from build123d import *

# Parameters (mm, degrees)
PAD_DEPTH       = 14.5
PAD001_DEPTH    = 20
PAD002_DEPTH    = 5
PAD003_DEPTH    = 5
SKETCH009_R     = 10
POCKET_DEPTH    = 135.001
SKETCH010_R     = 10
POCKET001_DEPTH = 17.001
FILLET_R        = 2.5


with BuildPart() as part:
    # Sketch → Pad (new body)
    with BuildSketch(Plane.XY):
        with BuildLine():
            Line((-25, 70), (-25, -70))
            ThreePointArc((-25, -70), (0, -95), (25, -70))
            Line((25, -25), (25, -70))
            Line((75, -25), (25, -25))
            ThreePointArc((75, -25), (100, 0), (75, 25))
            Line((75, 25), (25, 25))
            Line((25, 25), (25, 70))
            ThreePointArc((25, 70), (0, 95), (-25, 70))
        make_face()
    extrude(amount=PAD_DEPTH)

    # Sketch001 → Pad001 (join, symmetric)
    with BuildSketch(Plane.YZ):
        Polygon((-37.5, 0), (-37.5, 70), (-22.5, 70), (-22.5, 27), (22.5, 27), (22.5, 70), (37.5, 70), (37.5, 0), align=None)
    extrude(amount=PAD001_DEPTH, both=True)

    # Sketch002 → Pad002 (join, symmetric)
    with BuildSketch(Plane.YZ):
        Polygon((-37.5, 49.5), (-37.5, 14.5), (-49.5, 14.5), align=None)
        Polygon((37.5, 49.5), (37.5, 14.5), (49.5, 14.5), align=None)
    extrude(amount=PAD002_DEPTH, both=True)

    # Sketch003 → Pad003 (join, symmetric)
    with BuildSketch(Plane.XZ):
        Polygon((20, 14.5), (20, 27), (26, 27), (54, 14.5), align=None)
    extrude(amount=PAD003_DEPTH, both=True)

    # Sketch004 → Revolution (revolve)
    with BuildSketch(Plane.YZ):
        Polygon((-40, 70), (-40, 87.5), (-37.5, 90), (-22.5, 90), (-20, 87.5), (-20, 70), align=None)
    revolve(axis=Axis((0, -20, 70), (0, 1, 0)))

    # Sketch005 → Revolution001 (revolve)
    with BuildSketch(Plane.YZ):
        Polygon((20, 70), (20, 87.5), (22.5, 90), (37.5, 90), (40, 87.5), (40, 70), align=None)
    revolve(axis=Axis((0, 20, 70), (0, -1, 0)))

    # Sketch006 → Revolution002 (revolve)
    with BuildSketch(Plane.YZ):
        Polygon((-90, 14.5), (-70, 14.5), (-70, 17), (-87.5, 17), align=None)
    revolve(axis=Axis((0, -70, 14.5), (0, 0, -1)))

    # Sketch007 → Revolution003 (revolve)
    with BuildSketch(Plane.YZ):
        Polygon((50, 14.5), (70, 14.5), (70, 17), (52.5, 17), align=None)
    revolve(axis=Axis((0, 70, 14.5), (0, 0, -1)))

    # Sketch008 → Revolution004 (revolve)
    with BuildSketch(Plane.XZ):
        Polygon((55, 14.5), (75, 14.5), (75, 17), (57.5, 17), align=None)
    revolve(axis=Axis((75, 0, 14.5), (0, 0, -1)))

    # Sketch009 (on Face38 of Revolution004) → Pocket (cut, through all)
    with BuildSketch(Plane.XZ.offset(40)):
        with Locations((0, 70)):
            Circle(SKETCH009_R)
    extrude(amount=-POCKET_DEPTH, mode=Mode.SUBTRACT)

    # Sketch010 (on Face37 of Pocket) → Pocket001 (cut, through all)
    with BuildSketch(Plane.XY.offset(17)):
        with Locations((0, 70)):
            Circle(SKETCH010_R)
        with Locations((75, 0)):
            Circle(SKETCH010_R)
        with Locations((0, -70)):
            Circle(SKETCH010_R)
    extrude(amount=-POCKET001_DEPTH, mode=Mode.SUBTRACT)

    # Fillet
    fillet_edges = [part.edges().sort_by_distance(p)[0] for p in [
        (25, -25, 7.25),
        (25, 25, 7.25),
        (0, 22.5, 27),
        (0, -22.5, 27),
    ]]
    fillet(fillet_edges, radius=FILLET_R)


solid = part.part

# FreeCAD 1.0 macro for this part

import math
import FreeCAD as App
import Part
import Sketcher
Q = App.Units.Quantity


def edges_at(feature, points):
    """Names of the edges that pass closest to the given points."""
    edges = feature.Shape.Edges
    near = lambda p: min(range(len(edges)), key=lambda i: edges[i].distToShape(Part.Vertex(*p))[0])
    return sorted({f"Edge{near(p) + 1}" for p in points})

doc = App.newDocument("Part")
body = doc.addObject("PartDesign::Body", "Body")

# Sketch on XY plane
sketch1 = body.newObject("Sketcher::SketchObject", "Sketch")
sketch1.AttachmentSupport = (doc.getObject("XY_Plane"), [""])
sketch1.MapMode = "FlatFace"
sketch1.addGeometry([
    Part.LineSegment(App.Vector(-25, 70, 0), App.Vector(-25, -70, 0)),  # 0
    Part.ArcOfCircle(Part.Circle(App.Vector(0, -70, 0), App.Vector(0, 0, 1), 25), math.radians(180), math.radians(360)),  # 1
    Part.LineSegment(App.Vector(25, -70, 0), App.Vector(25, -25, 0)),  # 2
    Part.LineSegment(App.Vector(25, -25, 0), App.Vector(75, -25, 0)),  # 3
    Part.ArcOfCircle(Part.Circle(App.Vector(75, 0, 0), App.Vector(0, 0, 1), 25), math.radians(-90), math.radians(90)),  # 4
    Part.LineSegment(App.Vector(75, 25, 0), App.Vector(25, 25, 0)),  # 5
    Part.LineSegment(App.Vector(25, 25, 0), App.Vector(25, 70, 0)),  # 6
    Part.ArcOfCircle(Part.Circle(App.Vector(0, 70, 0), App.Vector(0, 0, 1), 25), math.radians(0), math.radians(180)),  # 7
], False)
sketch1.addConstraint([
    Sketcher.Constraint("Tangent", 0, 2, 1, 1),
    Sketcher.Constraint("Tangent", 1, 2, 2, 1),
    Sketcher.Constraint("Coincident", 2, 2, 3, 1),
    Sketcher.Constraint("Tangent", 3, 2, 4, 1),
    Sketcher.Constraint("Tangent", 4, 2, 5, 1),
    Sketcher.Constraint("Coincident", 5, 2, 6, 1),
    Sketcher.Constraint("Tangent", 6, 2, 7, 1),
    Sketcher.Constraint("Tangent", 7, 2, 0, 1),
    Sketcher.Constraint("Vertical", 0),
    Sketcher.Constraint("Vertical", 2),
    Sketcher.Constraint("Horizontal", 3),
    Sketcher.Constraint("Horizontal", 5),
    Sketcher.Constraint("Vertical", 6),
    Sketcher.Constraint("Equal", 1, 4),
    Sketcher.Constraint("Equal", 4, 7),
    Sketcher.Constraint("Symmetric", 1, 3, 7, 3, -1, 1),
    Sketcher.Constraint("PointOnObject", 4, 3, -1),
    Sketcher.Constraint("Radius", 1, 25.0),
    Sketcher.Constraint("DistanceX", 3, 1, 3, 2, 50.0),
    Sketcher.Constraint("DistanceY", 0, 2, 0, 1, 140.0),
])
pad1 = body.newObject("PartDesign::Pad", "Pad")
pad1.Profile = sketch1
pad1.Length = 14.5

# Sketch on YZ plane
sketch2 = body.newObject("Sketcher::SketchObject", "Sketch001")
sketch2.AttachmentSupport = (doc.getObject("YZ_Plane"), [""])
sketch2.MapMode = "FlatFace"
sketch2.addGeometry([
    Part.LineSegment(App.Vector(-38, 70, 0), App.Vector(-38, 0, 0)),  # 0
    Part.LineSegment(App.Vector(-38, 0, 0), App.Vector(38, 0, 0)),  # 1
    Part.LineSegment(App.Vector(38, 0, 0), App.Vector(38, 70, 0)),  # 2
    Part.LineSegment(App.Vector(38, 70, 0), App.Vector(22, 70, 0)),  # 3
    Part.LineSegment(App.Vector(22, 70, 0), App.Vector(22, 27, 0)),  # 4
    Part.LineSegment(App.Vector(22, 27, 0), App.Vector(-22, 27, 0)),  # 5
    Part.LineSegment(App.Vector(-22, 27, 0), App.Vector(-22, 70, 0)),  # 6
    Part.LineSegment(App.Vector(-22, 70, 0), App.Vector(-38, 70, 0)),  # 7
], False)
sketch2.addConstraint([
    Sketcher.Constraint("Coincident", 0, 2, 1, 1),
    Sketcher.Constraint("Coincident", 1, 2, 2, 1),
    Sketcher.Constraint("Coincident", 2, 2, 3, 1),
    Sketcher.Constraint("Coincident", 3, 2, 4, 1),
    Sketcher.Constraint("Coincident", 4, 2, 5, 1),
    Sketcher.Constraint("Coincident", 5, 2, 6, 1),
    Sketcher.Constraint("Coincident", 6, 2, 7, 1),
    Sketcher.Constraint("Coincident", 7, 2, 0, 1),
    Sketcher.Constraint("Vertical", 0),
    Sketcher.Constraint("Horizontal", 1),
    Sketcher.Constraint("Vertical", 2),
    Sketcher.Constraint("Horizontal", 3),
    Sketcher.Constraint("Vertical", 4),
    Sketcher.Constraint("Horizontal", 5),
    Sketcher.Constraint("Vertical", 6),
    Sketcher.Constraint("Horizontal", 7),
    Sketcher.Constraint("Symmetric", 0, 2, 1, 2, -1, 1),
    Sketcher.Constraint("Symmetric", 3, 2, 6, 2, -2),
    Sketcher.Constraint("DistanceX", 1, 1, 1, 2, 75.0),
    Sketcher.Constraint("DistanceX", 3, 2, 3, 1, 15.0),
    Sketcher.Constraint("DistanceY", 0, 2, 0, 1, 70.0),
    Sketcher.Constraint("DistanceY", 4, 2, 4, 1, 43.0),
])
pad2 = body.newObject("PartDesign::Pad", "Pad001")
pad2.Profile = sketch2
pad2.Length = 40
pad2.Midplane = True

# Sketch on YZ plane
sketch3 = body.newObject("Sketcher::SketchObject", "Sketch002")
sketch3.AttachmentSupport = (doc.getObject("YZ_Plane"), [""])
sketch3.MapMode = "FlatFace"
sketch3.addGeometry([
    Part.LineSegment(App.Vector(-38, 14, 0), App.Vector(-38, 50, 0)),  # 0
    Part.LineSegment(App.Vector(-38, 50, 0), App.Vector(-50, 14, 0)),  # 1
    Part.LineSegment(App.Vector(-50, 14, 0), App.Vector(-38, 14, 0)),  # 2
    Part.LineSegment(App.Vector(38, 50, 0), App.Vector(38, 14, 0)),  # 3
    Part.LineSegment(App.Vector(38, 14, 0), App.Vector(50, 14, 0)),  # 4
    Part.LineSegment(App.Vector(50, 14, 0), App.Vector(38, 50, 0)),  # 5
], False)
sketch3.addConstraint([
    Sketcher.Constraint("Coincident", 0, 2, 1, 1),
    Sketcher.Constraint("Coincident", 1, 2, 2, 1),
    Sketcher.Constraint("Coincident", 2, 2, 0, 1),
    Sketcher.Constraint("Coincident", 3, 2, 4, 1),
    Sketcher.Constraint("Coincident", 4, 2, 5, 1),
    Sketcher.Constraint("Coincident", 5, 2, 3, 1),
    Sketcher.Constraint("Vertical", 0),
    Sketcher.Constraint("Horizontal", 2),
    Sketcher.Constraint("Vertical", 3),
    Sketcher.Constraint("Horizontal", 4),
    Sketcher.Constraint("Symmetric", 2, 2, 3, 2, -2),
    Sketcher.Constraint("Horizontal", 0, 2, 5, 2),
    Sketcher.Constraint("Equal", 2, 4),
    Sketcher.Constraint("DistanceX", 2, 1, 2, 2, 12.0),
    Sketcher.Constraint("DistanceY", 0, 1, 0, 2, 35.0),
    Sketcher.Constraint("DistanceX", 2, 2, 3, 2, 75.0),
    Sketcher.Constraint("DistanceY", -1, 1, 0, 2, 49.5),
])
pad3 = body.newObject("PartDesign::Pad", "Pad002")
pad3.Profile = sketch3
pad3.Length = 10
pad3.Midplane = True

# Sketch on XZ plane
sketch4 = body.newObject("Sketcher::SketchObject", "Sketch003")
sketch4.AttachmentSupport = (doc.getObject("XZ_Plane"), [""])
sketch4.MapMode = "FlatFace"
sketch4.addGeometry([
    Part.LineSegment(App.Vector(20, 27, 0), App.Vector(20, 14, 0)),
    Part.LineSegment(App.Vector(20, 14, 0), App.Vector(54, 14, 0)),
    Part.LineSegment(App.Vector(54, 14, 0), App.Vector(26, 27, 0)),
    Part.LineSegment(App.Vector(26, 27, 0), App.Vector(20, 27, 0)),
], False)
sketch4.addConstraint([
    Sketcher.Constraint("Coincident", 0, 2, 1, 1),
    Sketcher.Constraint("Coincident", 1, 2, 2, 1),
    Sketcher.Constraint("Coincident", 2, 2, 3, 1),
    Sketcher.Constraint("Coincident", 3, 2, 0, 1),
    Sketcher.Constraint("Vertical", 0),
    Sketcher.Constraint("Horizontal", 1),
    Sketcher.Constraint("Horizontal", 3),
    Sketcher.Constraint("DistanceX", 1, 1, 1, 2, 34.0),
    Sketcher.Constraint("DistanceX", 3, 2, 3, 1, 6.0),
    Sketcher.Constraint("DistanceY", 0, 2, 0, 1, 12.5),
    Sketcher.Constraint("DistanceX", -1, 1, 0, 2, 20.0),
    Sketcher.Constraint("DistanceY", -1, 1, 2, 2, 27.0),
])
pad4 = body.newObject("PartDesign::Pad", "Pad003")
pad4.Profile = sketch4
pad4.Length = 10
pad4.Midplane = True

# Sketch on YZ plane
sketch5 = body.newObject("Sketcher::SketchObject", "Sketch004")
sketch5.AttachmentSupport = (doc.getObject("YZ_Plane"), [""])
sketch5.MapMode = "FlatFace"
sketch5.addGeometry([
    Part.LineSegment(App.Vector(-40, 87.5, 0), App.Vector(-40, 70, 0)),  # 0
    Part.LineSegment(App.Vector(-40, 70, 0), App.Vector(-20, 70, 0)),  # 1
    Part.LineSegment(App.Vector(-20, 70, 0), App.Vector(-20, 87.5, 0)),  # 2
    Part.LineSegment(App.Vector(-20, 87.5, 0), App.Vector(-22.5, 90, 0)),  # 3
    Part.LineSegment(App.Vector(-22.5, 90, 0), App.Vector(-37.5, 90, 0)),  # 4
    Part.LineSegment(App.Vector(-37.5, 90, 0), App.Vector(-40, 87.5, 0)),  # 5
], False)
sketch5.addGeometry(Part.LineSegment(App.Vector(-40, 70, 0), App.Vector(-20, 70, 0)), True)  # axis
sketch5.addConstraint([
    Sketcher.Constraint("Coincident", 0, 2, 1, 1),
    Sketcher.Constraint("Coincident", 1, 2, 2, 1),
    Sketcher.Constraint("Coincident", 2, 2, 3, 1),
    Sketcher.Constraint("Coincident", 3, 2, 4, 1),
    Sketcher.Constraint("Coincident", 4, 2, 5, 1),
    Sketcher.Constraint("Coincident", 5, 2, 0, 1),
    Sketcher.Constraint("Vertical", 0),
    Sketcher.Constraint("Horizontal", 1),
    Sketcher.Constraint("Vertical", 2),
    Sketcher.Constraint("Horizontal", 4),
    Sketcher.Constraint("Horizontal", 6),
    Sketcher.Constraint("Coincident", 6, 1, 0, 2),
    Sketcher.Constraint("Perpendicular", 3, 5),
    Sketcher.Constraint("Horizontal", 2, 2, 5, 2),
    Sketcher.Constraint("Vertical", 2, 2, 6, 2),
    Sketcher.Constraint("Equal", 3, 5),
    Sketcher.Constraint("DistanceX", 1, 1, 1, 2, 20.0),
    Sketcher.Constraint("DistanceX", 4, 2, 4, 1, 15.0),
    Sketcher.Constraint("DistanceY", 0, 2, 0, 1, 17.5),
    Sketcher.Constraint("DistanceX", 0, 2, -1, 1, 40.0),
    Sketcher.Constraint("DistanceY", -1, 1, 0, 2, 70.0),
])
revolution = body.newObject("PartDesign::Revolution", "Revolution")
revolution.Profile = sketch5
revolution.ReferenceAxis = (sketch5, ["Axis0"])
revolution.Angle = 360

# Sketch on YZ plane
sketch6 = body.newObject("Sketcher::SketchObject", "Sketch005")
sketch6.AttachmentSupport = (doc.getObject("YZ_Plane"), [""])
sketch6.MapMode = "FlatFace"
sketch6.addGeometry([
    Part.LineSegment(App.Vector(20, 87.5, 0), App.Vector(20, 70, 0)),  # 0
    Part.LineSegment(App.Vector(20, 70, 0), App.Vector(40, 70, 0)),  # 1
    Part.LineSegment(App.Vector(40, 70, 0), App.Vector(40, 87.5, 0)),  # 2
    Part.LineSegment(App.Vector(40, 87.5, 0), App.Vector(37.5, 90, 0)),  # 3
    Part.LineSegment(App.Vector(37.5, 90, 0), App.Vector(22.5, 90, 0)),  # 4
    Part.LineSegment(App.Vector(22.5, 90, 0), App.Vector(20, 87.5, 0)),  # 5
], False)
sketch6.addGeometry(Part.LineSegment(App.Vector(40, 70, 0), App.Vector(20, 70, 0)), True)  # axis
sketch6.addConstraint([
    Sketcher.Constraint("Coincident", 0, 2, 1, 1),
    Sketcher.Constraint("Coincident", 1, 2, 2, 1),
    Sketcher.Constraint("Coincident", 2, 2, 3, 1),
    Sketcher.Constraint("Coincident", 3, 2, 4, 1),
    Sketcher.Constraint("Coincident", 4, 2, 5, 1),
    Sketcher.Constraint("Coincident", 5, 2, 0, 1),
    Sketcher.Constraint("Vertical", 0),
    Sketcher.Constraint("Horizontal", 1),
    Sketcher.Constraint("Vertical", 2),
    Sketcher.Constraint("Horizontal", 4),
    Sketcher.Constraint("Horizontal", 6),
    Sketcher.Constraint("Coincident", 6, 1, 1, 2),
    Sketcher.Constraint("Perpendicular", 3, 5),
    Sketcher.Constraint("Horizontal", 2, 2, 5, 2),
    Sketcher.Constraint("Vertical", 5, 2, 6, 2),
    Sketcher.Constraint("Equal", 3, 5),
    Sketcher.Constraint("DistanceX", 1, 1, 1, 2, 20.0),
    Sketcher.Constraint("DistanceX", 4, 2, 4, 1, 15.0),
    Sketcher.Constraint("DistanceY", 0, 2, 0, 1, 17.5),
    Sketcher.Constraint("DistanceX", -1, 1, 0, 2, 20.0),
    Sketcher.Constraint("DistanceY", -1, 1, 0, 2, 70.0),
])
revolution2 = body.newObject("PartDesign::Revolution", "Revolution001")
revolution2.Profile = sketch6
revolution2.ReferenceAxis = (sketch6, ["Axis0"])
revolution2.Angle = 360

# Sketch on YZ plane
sketch7 = body.newObject("Sketcher::SketchObject", "Sketch006")
sketch7.AttachmentSupport = (doc.getObject("YZ_Plane"), [""])
sketch7.MapMode = "FlatFace"
sketch7.addGeometry([
    Part.LineSegment(App.Vector(-90, 14.5, 0), App.Vector(-70, 14.5, 0)),
    Part.LineSegment(App.Vector(-70, 14.5, 0), App.Vector(-70, 17, 0)),
    Part.LineSegment(App.Vector(-70, 17, 0), App.Vector(-87.5, 17, 0)),
    Part.LineSegment(App.Vector(-87.5, 17, 0), App.Vector(-90, 14.5, 0)),
], False)
sketch7.addGeometry(Part.LineSegment(App.Vector(-70, 17, 0), App.Vector(-70, 14.5, 0)), True)  # axis
sketch7.addConstraint([
    Sketcher.Constraint("Coincident", 0, 2, 1, 1),
    Sketcher.Constraint("Coincident", 1, 2, 2, 1),
    Sketcher.Constraint("Coincident", 2, 2, 3, 1),
    Sketcher.Constraint("Coincident", 3, 2, 0, 1),
    Sketcher.Constraint("Horizontal", 0),
    Sketcher.Constraint("Vertical", 1),
    Sketcher.Constraint("Horizontal", 2),
    Sketcher.Constraint("Vertical", 4),
    Sketcher.Constraint("Coincident", 4, 1, 1, 2),
    Sketcher.Constraint("Horizontal", 3, 2, 4, 2),
    Sketcher.Constraint("DistanceX", 0, 1, 0, 2, 20.0),
    Sketcher.Constraint("Angle", 3, Q("-135 deg")),
    Sketcher.Constraint("DistanceX", 2, 2, 2, 1, 17.5),
    Sketcher.Constraint("DistanceX", 0, 2, -1, 1, 70.0),
    Sketcher.Constraint("DistanceY", -1, 1, 1, 2, 17.0),
])
revolution3 = body.newObject("PartDesign::Revolution", "Revolution002")
revolution3.Profile = sketch7
revolution3.ReferenceAxis = (sketch7, ["Axis0"])
revolution3.Angle = 360

# Sketch on YZ plane
sketch8 = body.newObject("Sketcher::SketchObject", "Sketch007")
sketch8.AttachmentSupport = (doc.getObject("YZ_Plane"), [""])
sketch8.MapMode = "FlatFace"
sketch8.addGeometry([
    Part.LineSegment(App.Vector(50, 14.5, 0), App.Vector(70, 14.5, 0)),
    Part.LineSegment(App.Vector(70, 14.5, 0), App.Vector(70, 17, 0)),
    Part.LineSegment(App.Vector(70, 17, 0), App.Vector(52.5, 17, 0)),
    Part.LineSegment(App.Vector(52.5, 17, 0), App.Vector(50, 14.5, 0)),
], False)
sketch8.addGeometry(Part.LineSegment(App.Vector(70, 17, 0), App.Vector(70, 14.5, 0)), True)  # axis
sketch8.addConstraint([
    Sketcher.Constraint("Coincident", 0, 2, 1, 1),
    Sketcher.Constraint("Coincident", 1, 2, 2, 1),
    Sketcher.Constraint("Coincident", 2, 2, 3, 1),
    Sketcher.Constraint("Coincident", 3, 2, 0, 1),
    Sketcher.Constraint("Horizontal", 0),
    Sketcher.Constraint("Vertical", 1),
    Sketcher.Constraint("Horizontal", 2),
    Sketcher.Constraint("Vertical", 4),
    Sketcher.Constraint("Coincident", 4, 1, 1, 2),
    Sketcher.Constraint("Horizontal", 3, 2, 4, 2),
    Sketcher.Constraint("DistanceX", 0, 1, 0, 2, 20.0),
    Sketcher.Constraint("Angle", 3, Q("-135 deg")),
    Sketcher.Constraint("DistanceX", 2, 2, 2, 1, 17.5),
    Sketcher.Constraint("DistanceX", -1, 1, 0, 2, 70.0),
    Sketcher.Constraint("DistanceY", -1, 1, 1, 2, 17.0),
])
revolution4 = body.newObject("PartDesign::Revolution", "Revolution003")
revolution4.Profile = sketch8
revolution4.ReferenceAxis = (sketch8, ["Axis0"])
revolution4.Angle = 360

# Sketch on XZ plane
sketch9 = body.newObject("Sketcher::SketchObject", "Sketch008")
sketch9.AttachmentSupport = (doc.getObject("XZ_Plane"), [""])
sketch9.MapMode = "FlatFace"
sketch9.addGeometry([
    Part.LineSegment(App.Vector(55, 14.5, 0), App.Vector(75, 14.5, 0)),
    Part.LineSegment(App.Vector(75, 14.5, 0), App.Vector(75, 17, 0)),
    Part.LineSegment(App.Vector(75, 17, 0), App.Vector(57.5, 17, 0)),
    Part.LineSegment(App.Vector(57.5, 17, 0), App.Vector(55, 14.5, 0)),
], False)
sketch9.addGeometry(Part.LineSegment(App.Vector(75, 17, 0), App.Vector(75, 14.5, 0)), True)  # axis
sketch9.addConstraint([
    Sketcher.Constraint("Coincident", 0, 2, 1, 1),
    Sketcher.Constraint("Coincident", 1, 2, 2, 1),
    Sketcher.Constraint("Coincident", 2, 2, 3, 1),
    Sketcher.Constraint("Coincident", 3, 2, 0, 1),
    Sketcher.Constraint("Horizontal", 0),
    Sketcher.Constraint("Vertical", 1),
    Sketcher.Constraint("Horizontal", 2),
    Sketcher.Constraint("Vertical", 4),
    Sketcher.Constraint("Coincident", 4, 1, 1, 2),
    Sketcher.Constraint("Horizontal", 3, 2, 4, 2),
    Sketcher.Constraint("DistanceX", 0, 1, 0, 2, 20.0),
    Sketcher.Constraint("Angle", 3, Q("-135 deg")),
    Sketcher.Constraint("DistanceX", 2, 2, 2, 1, 17.5),
    Sketcher.Constraint("DistanceX", -1, 1, 0, 2, 75.0),
    Sketcher.Constraint("DistanceY", -1, 1, 1, 2, 17.0),
])
revolution5 = body.newObject("PartDesign::Revolution", "Revolution004")
revolution5.Profile = sketch9
revolution5.ReferenceAxis = (sketch9, ["Axis0"])
revolution5.Angle = 360

# Sketch on XZ plane
sketch10 = body.newObject("Sketcher::SketchObject", "Sketch009")
sketch10.AttachmentSupport = (doc.getObject("XZ_Plane"), [""])
sketch10.MapMode = "FlatFace"
sketch10.AttachmentOffset = App.Placement(App.Vector(0, 0, 40), App.Rotation())
sketch10.addGeometry(Part.Circle(App.Vector(0, 70, 0), App.Vector(0, 0, 1), 10), False)
sketch10.addConstraint([
    Sketcher.Constraint("PointOnObject", 0, 3, -2),
    Sketcher.Constraint("Diameter", 0, 20.0),
    Sketcher.Constraint("DistanceY", -1, 1, 0, 3, 70.0),
])
pocket1 = body.newObject("PartDesign::Pocket", "Pocket")
pocket1.Profile = sketch10
pocket1.Type = "ThroughAll"

# Sketch on XY plane
sketch11 = body.newObject("Sketcher::SketchObject", "Sketch010")
sketch11.AttachmentSupport = (doc.getObject("XY_Plane"), [""])
sketch11.MapMode = "FlatFace"
sketch11.AttachmentOffset = App.Placement(App.Vector(0, 0, 17), App.Rotation())
sketch11.addGeometry([
    Part.Circle(App.Vector(0, 70, 0), App.Vector(0, 0, 1), 10),
    Part.Circle(App.Vector(75, 0, 0), App.Vector(0, 0, 1), 10),
    Part.Circle(App.Vector(0, -70, 0), App.Vector(0, 0, 1), 10),
], False)
sketch11.addConstraint([
    Sketcher.Constraint("Equal", 0, 1),
    Sketcher.Constraint("Equal", 1, 2),
    Sketcher.Constraint("Symmetric", 0, 3, 2, 3, -1, 1),
    Sketcher.Constraint("PointOnObject", 0, 3, -2),
    Sketcher.Constraint("PointOnObject", 1, 3, -1),
    Sketcher.Constraint("Diameter", 0, 20.0),
    Sketcher.Constraint("DistanceY", -1, 1, 0, 3, 70.0),
    Sketcher.Constraint("DistanceX", -1, 1, 1, 3, 75.0),
])
pocket2 = body.newObject("PartDesign::Pocket", "Pocket001")
pocket2.Profile = sketch11
pocket2.Type = "ThroughAll"
doc.recompute()

fillet = body.newObject("PartDesign::Fillet", "Fillet")
fillet.Base = (pocket2, edges_at(pocket2, [
    (25, -25, 7.25),
    (25, 25, 7.25),
    (0, 22.5, 27),
    (0, -22.5, 27),
]))
fillet.Radius = 2.5

doc.recompute()
